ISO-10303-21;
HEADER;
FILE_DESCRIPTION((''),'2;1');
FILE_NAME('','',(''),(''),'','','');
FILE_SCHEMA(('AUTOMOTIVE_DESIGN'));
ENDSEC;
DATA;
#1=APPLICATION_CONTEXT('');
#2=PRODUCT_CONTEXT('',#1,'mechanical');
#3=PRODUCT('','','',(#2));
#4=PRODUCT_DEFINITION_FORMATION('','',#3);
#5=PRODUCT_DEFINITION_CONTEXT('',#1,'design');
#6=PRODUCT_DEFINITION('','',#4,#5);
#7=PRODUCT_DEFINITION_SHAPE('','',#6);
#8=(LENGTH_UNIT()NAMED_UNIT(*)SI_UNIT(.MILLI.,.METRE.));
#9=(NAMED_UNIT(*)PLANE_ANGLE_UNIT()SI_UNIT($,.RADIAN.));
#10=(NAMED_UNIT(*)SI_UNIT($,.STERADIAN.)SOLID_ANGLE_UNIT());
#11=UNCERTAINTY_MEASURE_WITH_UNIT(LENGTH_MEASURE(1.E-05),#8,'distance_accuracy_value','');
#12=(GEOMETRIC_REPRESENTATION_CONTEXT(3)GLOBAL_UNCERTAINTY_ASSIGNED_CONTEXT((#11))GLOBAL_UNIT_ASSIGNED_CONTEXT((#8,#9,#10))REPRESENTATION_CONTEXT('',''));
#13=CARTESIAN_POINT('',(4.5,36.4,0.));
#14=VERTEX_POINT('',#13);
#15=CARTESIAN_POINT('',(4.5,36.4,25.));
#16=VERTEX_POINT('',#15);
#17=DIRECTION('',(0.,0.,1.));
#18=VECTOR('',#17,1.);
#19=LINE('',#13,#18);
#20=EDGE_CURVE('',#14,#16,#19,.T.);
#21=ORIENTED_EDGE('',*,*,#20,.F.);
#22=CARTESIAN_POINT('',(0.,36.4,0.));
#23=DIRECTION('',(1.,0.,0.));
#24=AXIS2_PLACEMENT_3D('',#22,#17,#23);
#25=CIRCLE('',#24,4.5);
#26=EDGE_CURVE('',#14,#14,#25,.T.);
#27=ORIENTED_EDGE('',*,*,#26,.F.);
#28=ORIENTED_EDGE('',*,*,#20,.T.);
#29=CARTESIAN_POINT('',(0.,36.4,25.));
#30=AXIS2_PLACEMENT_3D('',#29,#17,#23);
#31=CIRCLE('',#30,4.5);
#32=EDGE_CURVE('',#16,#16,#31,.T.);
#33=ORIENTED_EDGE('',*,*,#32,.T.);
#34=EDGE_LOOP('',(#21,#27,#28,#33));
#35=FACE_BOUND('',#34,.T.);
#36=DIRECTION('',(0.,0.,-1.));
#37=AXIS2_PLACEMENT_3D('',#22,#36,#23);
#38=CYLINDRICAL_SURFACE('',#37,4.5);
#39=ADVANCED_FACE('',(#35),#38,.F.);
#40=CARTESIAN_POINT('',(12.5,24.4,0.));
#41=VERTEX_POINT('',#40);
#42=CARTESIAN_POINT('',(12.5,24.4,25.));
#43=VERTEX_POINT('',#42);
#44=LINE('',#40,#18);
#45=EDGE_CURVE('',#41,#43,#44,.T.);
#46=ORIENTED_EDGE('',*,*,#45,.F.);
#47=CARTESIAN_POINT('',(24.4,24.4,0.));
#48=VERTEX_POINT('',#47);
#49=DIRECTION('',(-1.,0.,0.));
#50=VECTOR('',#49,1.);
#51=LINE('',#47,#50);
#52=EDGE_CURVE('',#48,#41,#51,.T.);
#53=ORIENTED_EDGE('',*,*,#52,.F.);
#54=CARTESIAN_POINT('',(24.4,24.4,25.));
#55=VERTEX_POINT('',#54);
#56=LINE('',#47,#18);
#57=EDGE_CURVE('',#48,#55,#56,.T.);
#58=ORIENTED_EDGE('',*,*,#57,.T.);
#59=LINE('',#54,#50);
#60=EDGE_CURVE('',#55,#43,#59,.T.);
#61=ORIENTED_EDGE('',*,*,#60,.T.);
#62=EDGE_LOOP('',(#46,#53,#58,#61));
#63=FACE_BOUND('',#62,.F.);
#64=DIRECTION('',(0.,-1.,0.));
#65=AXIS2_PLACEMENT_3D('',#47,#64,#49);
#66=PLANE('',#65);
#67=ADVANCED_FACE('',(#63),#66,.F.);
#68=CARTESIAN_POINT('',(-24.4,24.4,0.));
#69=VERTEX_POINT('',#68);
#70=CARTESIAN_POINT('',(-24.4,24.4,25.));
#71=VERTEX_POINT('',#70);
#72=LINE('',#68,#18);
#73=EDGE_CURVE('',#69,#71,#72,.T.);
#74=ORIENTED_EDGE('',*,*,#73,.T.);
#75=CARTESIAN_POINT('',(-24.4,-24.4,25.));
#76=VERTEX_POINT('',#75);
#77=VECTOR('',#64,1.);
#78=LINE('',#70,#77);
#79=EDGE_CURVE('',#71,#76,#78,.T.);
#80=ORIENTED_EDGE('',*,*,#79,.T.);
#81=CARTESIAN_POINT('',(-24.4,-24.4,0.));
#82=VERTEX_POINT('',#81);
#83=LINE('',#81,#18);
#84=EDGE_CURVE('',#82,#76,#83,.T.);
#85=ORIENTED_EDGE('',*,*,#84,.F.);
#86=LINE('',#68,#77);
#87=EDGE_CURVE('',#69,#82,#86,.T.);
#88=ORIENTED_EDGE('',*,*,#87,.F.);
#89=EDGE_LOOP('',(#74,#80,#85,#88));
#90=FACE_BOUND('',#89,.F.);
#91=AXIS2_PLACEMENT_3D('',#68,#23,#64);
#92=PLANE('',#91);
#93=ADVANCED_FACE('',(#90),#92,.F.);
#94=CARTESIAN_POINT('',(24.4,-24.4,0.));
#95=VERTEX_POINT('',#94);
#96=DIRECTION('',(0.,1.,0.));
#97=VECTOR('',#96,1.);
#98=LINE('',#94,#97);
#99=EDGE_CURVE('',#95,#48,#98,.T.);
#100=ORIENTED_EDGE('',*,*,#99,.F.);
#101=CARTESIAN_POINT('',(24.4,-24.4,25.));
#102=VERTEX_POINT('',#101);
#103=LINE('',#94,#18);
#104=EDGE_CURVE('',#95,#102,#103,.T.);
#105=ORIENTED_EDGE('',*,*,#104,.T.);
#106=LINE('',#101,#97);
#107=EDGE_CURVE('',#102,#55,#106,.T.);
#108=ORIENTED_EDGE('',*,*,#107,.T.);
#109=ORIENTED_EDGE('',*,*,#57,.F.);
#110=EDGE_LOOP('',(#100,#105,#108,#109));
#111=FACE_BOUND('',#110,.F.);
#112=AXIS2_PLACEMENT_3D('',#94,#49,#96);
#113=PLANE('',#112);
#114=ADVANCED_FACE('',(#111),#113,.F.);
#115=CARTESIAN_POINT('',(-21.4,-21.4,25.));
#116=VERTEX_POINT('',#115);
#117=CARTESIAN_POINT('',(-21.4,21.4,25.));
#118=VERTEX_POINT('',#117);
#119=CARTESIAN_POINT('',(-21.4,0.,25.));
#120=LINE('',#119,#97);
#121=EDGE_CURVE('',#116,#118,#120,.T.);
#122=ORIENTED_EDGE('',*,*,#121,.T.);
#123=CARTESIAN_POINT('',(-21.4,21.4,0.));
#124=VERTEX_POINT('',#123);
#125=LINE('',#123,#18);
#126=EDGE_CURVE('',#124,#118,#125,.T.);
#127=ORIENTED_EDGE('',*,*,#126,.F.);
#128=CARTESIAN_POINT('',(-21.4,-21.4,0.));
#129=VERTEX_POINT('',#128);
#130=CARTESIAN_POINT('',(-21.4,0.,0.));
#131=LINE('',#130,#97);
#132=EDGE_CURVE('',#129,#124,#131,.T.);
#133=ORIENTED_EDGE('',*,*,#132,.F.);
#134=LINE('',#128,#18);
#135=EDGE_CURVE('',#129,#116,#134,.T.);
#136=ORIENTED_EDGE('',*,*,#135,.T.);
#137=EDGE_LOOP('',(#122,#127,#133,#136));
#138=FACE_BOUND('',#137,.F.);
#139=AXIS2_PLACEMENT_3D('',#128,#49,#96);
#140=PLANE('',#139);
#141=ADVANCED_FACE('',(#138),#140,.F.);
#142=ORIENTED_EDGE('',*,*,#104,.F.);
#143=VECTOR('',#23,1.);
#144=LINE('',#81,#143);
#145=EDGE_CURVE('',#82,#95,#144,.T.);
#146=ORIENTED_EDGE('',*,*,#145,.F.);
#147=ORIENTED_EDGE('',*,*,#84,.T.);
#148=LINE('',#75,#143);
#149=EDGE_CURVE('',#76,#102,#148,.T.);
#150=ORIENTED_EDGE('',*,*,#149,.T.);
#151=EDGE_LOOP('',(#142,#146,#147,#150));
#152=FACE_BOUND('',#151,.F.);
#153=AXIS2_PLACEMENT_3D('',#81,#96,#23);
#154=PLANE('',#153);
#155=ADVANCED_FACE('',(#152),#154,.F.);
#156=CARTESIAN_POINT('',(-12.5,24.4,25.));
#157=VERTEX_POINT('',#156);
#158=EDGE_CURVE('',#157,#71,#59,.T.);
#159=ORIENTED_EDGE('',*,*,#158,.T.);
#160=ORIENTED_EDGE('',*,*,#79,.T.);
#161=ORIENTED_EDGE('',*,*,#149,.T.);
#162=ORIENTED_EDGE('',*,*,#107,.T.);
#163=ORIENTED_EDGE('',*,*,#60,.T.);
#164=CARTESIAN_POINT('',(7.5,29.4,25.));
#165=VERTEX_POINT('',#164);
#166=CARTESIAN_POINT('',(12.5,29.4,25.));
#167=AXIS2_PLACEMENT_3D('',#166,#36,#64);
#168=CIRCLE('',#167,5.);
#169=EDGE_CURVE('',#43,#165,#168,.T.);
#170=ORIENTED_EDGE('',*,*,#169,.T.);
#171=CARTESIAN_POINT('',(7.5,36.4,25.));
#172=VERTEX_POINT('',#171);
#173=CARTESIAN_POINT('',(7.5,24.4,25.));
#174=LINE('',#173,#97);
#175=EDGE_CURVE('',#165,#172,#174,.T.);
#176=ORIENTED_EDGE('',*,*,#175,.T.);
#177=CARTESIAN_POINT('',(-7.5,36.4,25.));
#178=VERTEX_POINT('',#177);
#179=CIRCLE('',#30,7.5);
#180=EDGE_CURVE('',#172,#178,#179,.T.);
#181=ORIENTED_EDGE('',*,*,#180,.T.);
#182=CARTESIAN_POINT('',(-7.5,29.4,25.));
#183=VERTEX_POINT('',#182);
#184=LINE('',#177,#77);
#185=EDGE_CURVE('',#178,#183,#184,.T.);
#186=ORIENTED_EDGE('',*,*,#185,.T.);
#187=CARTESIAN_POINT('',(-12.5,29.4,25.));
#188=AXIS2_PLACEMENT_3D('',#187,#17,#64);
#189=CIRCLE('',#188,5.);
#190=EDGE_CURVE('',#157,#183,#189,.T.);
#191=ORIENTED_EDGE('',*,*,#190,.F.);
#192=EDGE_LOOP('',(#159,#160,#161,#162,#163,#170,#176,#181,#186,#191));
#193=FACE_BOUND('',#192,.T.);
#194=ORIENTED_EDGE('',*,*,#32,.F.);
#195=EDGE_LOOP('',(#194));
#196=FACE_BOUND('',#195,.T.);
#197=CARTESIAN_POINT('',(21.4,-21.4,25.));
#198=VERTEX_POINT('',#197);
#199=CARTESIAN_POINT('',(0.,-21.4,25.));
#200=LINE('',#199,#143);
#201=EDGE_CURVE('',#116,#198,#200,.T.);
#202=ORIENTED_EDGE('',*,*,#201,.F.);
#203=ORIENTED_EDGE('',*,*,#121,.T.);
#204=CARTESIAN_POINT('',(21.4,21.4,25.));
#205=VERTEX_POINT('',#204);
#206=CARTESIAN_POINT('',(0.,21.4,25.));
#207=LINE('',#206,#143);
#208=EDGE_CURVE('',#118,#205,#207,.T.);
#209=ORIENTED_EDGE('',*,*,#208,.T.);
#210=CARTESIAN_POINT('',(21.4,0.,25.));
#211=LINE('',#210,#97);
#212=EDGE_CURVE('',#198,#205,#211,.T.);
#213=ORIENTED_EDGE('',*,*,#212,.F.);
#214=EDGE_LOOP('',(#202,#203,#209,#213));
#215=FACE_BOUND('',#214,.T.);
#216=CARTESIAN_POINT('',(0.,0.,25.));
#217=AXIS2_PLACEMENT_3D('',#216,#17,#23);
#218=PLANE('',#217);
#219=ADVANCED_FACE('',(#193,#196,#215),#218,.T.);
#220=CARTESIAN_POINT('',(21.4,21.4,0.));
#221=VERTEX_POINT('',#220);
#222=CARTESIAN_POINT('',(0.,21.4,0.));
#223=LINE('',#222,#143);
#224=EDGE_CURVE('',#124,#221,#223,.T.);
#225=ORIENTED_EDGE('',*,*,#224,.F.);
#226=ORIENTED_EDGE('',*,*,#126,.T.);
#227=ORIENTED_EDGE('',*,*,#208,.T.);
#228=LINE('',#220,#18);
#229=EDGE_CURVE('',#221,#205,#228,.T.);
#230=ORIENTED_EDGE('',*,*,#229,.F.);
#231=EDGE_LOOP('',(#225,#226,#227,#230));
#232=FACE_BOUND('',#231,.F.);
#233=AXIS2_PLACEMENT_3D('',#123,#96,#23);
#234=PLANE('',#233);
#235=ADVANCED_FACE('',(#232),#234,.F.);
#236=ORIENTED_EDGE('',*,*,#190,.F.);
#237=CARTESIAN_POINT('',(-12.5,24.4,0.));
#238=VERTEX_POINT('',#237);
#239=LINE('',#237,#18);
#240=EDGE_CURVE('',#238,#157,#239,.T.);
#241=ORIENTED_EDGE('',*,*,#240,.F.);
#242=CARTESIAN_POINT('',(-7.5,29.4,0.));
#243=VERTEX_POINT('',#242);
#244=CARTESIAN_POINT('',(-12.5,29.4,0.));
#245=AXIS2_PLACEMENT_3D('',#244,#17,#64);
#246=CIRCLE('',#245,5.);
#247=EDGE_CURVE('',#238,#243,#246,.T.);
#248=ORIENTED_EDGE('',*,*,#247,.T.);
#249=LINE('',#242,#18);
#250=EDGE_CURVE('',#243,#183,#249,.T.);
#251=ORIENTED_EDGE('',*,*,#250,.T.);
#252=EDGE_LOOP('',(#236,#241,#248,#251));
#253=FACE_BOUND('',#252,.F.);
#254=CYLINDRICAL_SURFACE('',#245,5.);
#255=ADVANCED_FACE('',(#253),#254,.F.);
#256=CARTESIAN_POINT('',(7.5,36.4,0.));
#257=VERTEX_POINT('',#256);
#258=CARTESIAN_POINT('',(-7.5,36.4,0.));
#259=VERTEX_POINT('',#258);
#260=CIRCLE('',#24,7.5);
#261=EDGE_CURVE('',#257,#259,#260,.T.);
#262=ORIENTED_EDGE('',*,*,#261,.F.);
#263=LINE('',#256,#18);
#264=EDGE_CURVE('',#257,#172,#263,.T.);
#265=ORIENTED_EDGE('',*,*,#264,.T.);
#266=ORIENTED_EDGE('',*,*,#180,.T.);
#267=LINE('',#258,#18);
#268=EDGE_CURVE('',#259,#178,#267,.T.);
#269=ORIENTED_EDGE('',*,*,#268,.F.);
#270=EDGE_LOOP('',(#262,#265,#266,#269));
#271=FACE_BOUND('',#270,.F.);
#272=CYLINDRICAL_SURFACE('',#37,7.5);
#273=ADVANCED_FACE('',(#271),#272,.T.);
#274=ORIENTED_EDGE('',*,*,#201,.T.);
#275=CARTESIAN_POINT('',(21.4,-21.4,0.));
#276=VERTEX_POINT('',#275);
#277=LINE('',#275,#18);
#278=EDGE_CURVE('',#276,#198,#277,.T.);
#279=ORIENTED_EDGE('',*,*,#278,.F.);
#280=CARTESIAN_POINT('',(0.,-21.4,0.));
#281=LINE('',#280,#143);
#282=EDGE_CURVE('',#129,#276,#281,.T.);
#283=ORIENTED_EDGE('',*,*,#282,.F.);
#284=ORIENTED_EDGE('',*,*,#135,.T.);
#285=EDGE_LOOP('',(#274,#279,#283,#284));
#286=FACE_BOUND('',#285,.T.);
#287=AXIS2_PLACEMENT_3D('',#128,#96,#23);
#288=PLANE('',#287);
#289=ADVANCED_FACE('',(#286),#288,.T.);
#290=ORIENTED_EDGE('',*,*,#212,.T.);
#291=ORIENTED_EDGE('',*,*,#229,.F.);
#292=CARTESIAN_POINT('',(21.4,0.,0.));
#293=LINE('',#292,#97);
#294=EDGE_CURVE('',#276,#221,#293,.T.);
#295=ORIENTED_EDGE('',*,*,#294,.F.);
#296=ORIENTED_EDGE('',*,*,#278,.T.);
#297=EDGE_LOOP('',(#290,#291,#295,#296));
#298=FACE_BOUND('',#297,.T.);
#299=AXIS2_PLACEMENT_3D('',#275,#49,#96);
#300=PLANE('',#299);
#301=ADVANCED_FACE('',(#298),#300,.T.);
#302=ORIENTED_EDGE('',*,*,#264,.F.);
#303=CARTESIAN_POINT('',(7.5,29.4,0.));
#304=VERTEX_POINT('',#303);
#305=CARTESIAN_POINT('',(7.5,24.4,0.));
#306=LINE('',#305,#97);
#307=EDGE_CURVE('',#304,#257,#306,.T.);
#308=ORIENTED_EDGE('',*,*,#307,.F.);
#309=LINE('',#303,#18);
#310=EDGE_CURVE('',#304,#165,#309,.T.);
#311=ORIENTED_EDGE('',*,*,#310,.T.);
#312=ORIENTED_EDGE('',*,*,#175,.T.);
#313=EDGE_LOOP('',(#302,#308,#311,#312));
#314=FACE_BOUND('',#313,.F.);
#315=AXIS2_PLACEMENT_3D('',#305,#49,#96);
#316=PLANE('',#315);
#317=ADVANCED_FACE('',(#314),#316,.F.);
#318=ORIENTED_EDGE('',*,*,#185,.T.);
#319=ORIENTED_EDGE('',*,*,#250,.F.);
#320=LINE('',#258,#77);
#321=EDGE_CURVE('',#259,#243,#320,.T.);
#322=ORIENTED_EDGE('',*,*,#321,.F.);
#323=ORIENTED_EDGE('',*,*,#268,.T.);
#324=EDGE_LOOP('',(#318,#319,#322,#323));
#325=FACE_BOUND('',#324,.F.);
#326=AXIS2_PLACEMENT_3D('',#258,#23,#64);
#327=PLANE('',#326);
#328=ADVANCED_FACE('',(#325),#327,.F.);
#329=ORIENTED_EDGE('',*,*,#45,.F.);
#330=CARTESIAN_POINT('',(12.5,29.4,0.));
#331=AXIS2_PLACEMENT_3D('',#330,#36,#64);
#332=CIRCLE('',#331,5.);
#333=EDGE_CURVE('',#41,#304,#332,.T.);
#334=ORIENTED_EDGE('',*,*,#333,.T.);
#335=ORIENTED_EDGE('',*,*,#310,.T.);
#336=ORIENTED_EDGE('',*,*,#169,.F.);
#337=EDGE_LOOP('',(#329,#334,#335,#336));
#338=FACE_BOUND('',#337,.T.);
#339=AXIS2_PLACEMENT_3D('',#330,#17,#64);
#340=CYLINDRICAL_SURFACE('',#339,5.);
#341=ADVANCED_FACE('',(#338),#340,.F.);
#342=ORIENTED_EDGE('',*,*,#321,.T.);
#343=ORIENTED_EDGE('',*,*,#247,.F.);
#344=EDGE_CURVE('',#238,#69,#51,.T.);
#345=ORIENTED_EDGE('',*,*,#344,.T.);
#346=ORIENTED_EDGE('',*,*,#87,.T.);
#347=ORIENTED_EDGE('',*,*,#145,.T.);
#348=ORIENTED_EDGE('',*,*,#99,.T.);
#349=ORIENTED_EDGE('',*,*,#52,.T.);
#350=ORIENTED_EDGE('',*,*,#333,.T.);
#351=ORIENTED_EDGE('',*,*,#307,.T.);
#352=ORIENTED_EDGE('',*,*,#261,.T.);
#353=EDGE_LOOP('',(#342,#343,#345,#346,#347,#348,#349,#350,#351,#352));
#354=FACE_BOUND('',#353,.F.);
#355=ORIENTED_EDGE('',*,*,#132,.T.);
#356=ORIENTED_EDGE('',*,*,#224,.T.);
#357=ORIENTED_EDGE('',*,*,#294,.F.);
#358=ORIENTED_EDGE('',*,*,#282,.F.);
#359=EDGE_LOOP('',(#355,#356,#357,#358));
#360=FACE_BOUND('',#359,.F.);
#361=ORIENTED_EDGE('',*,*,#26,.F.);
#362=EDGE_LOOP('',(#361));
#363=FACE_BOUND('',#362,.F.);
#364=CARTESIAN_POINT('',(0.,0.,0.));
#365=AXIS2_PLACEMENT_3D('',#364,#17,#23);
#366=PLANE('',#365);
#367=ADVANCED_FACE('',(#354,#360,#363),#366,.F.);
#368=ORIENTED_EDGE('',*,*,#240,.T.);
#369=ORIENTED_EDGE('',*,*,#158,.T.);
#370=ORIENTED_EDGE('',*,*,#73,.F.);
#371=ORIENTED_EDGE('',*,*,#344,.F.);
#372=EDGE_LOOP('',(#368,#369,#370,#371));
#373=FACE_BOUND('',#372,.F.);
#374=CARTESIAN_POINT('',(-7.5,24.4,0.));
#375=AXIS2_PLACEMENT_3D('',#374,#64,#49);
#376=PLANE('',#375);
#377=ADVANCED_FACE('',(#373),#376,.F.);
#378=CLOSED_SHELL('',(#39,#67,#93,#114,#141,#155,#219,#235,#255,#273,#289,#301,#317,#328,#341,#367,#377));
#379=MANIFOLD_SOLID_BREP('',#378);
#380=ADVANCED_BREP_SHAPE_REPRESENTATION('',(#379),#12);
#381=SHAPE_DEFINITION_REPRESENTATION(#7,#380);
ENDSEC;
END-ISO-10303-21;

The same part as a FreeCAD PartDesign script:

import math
import FreeCAD as App
import Part
import Sketcher

V = App.Vector


def edges_at(feature, points):
    """Names of the edges that pass closest to the given points."""
    edges = feature.Shape.Edges
    near = lambda p: min(range(len(edges)), key=lambda i: edges[i].distToShape(Part.Vertex(*p))[0])
    return sorted({f"Edge{near(p) + 1}" for p in points})

doc = App.newDocument("Part")
body = doc.addObject("PartDesign::Body", "Body")

sketch1 = body.newObject("Sketcher::SketchObject", "Sketch")
sketch1.AttachmentSupport = (doc.getObject("XY_Plane"), [""])
sketch1.MapMode = "FlatFace"
sketch1.addGeometry([
    Part.LineSegment(V(24.4, -24.4, 0), V(24.4, 24.4, 0)),
    Part.LineSegment(V(24.4, 24.4, 0), V(7.5, 24.4, 0)),
    Part.LineSegment(V(7.5, 24.4, 0), V(7.5, 36.4, 0)),
    Part.ArcOfCircle(Part.Circle(V(0, 36.4, 0), V(0, 0, 1), 7.5), math.radians(0), math.radians(180)),
    Part.LineSegment(V(-7.5, 36.4, 0), V(-7.5, 24.4, 0)),
    Part.LineSegment(V(-7.5, 24.4, 0), V(-24.4, 24.4, 0)),
    Part.LineSegment(V(-24.4, 24.4, 0), V(-24.4, -24.4, 0)),
    Part.LineSegment(V(-24.4, -24.4, 0), V(24.4, -24.4, 0)),
    Part.LineSegment(V(21.4, -21.4, 0), V(-21.4, -21.4, 0)),
    Part.LineSegment(V(-21.4, -21.4, 0), V(-21.4, 21.4, 0)),
    Part.LineSegment(V(-21.4, 21.4, 0), V(21.4, 21.4, 0)),
    Part.LineSegment(V(21.4, 21.4, 0), V(21.4, -21.4, 0)),
    Part.Circle(V(0, 36.4, 0), V(0, 0, 1), 4.5),
], False)
sketch1.addConstraint([
    Sketcher.Constraint("Coincident", 0, 2, 1, 1),
    Sketcher.Constraint("Coincident", 1, 2, 2, 1),
    Sketcher.Constraint("Tangent", 2, 2, 3, 1),
    Sketcher.Constraint("Tangent", 3, 2, 4, 1),
    Sketcher.Constraint("Coincident", 4, 2, 5, 1),
    Sketcher.Constraint("Coincident", 5, 2, 6, 1),
    Sketcher.Constraint("Coincident", 6, 2, 7, 1),
    Sketcher.Constraint("Coincident", 7, 2, 0, 1),
    Sketcher.Constraint("Coincident", 8, 2, 9, 1),
    Sketcher.Constraint("Coincident", 9, 2, 10, 1),
    Sketcher.Constraint("Coincident", 10, 2, 11, 1),
    Sketcher.Constraint("Coincident", 11, 2, 8, 1),
    Sketcher.Constraint("Vertical", 0),
    Sketcher.Constraint("Horizontal", 1),
    Sketcher.Constraint("Vertical", 2),
    Sketcher.Constraint("Vertical", 4),
    Sketcher.Constraint("Horizontal", 5),
    Sketcher.Constraint("Vertical", 6),
    Sketcher.Constraint("Horizontal", 7),
    Sketcher.Constraint("Horizontal", 8),
    Sketcher.Constraint("Vertical", 9),
    Sketcher.Constraint("Horizontal", 10),
    Sketcher.Constraint("Vertical", 11),
    Sketcher.Constraint("Coincident", 12, 3, 3, 3),
    Sketcher.Constraint("Symmetric", 0, 2, 6, 2, -1, 1),
    Sketcher.Constraint("Symmetric", 8, 2, 10, 2, -1, 1),
    Sketcher.Constraint("Symmetric", 1, 2, 4, 2, -2),
    Sketcher.Constraint("Equal", 7, 0),
    Sketcher.Constraint("Equal", 10, 9),
    Sketcher.Constraint("Diameter", 12, 9.0),
    Sketcher.Constraint("Radius", 3, 7.5),
    Sketcher.Constraint("DistanceY", 2, 1, 2, 2, 12.0),
    Sketcher.Constraint("DistanceX", 1, 2, 1, 1, 16.9),
    Sketcher.Constraint("DistanceX", 8, 2, 8, 1, 42.8),
])
pad1 = body.newObject("PartDesign::Pad", "Pad")
pad1.Profile = sketch1
pad1.Length = 25
doc.recompute()

fillet = body.newObject("PartDesign::Fillet", "Fillet")
fillet.Base = (pad1, edges_at(pad1, [(7.5, 24.4, 12.5), (-7.5, 24.4, 12.5)]))
fillet.Radius = 5

doc.recompute()
